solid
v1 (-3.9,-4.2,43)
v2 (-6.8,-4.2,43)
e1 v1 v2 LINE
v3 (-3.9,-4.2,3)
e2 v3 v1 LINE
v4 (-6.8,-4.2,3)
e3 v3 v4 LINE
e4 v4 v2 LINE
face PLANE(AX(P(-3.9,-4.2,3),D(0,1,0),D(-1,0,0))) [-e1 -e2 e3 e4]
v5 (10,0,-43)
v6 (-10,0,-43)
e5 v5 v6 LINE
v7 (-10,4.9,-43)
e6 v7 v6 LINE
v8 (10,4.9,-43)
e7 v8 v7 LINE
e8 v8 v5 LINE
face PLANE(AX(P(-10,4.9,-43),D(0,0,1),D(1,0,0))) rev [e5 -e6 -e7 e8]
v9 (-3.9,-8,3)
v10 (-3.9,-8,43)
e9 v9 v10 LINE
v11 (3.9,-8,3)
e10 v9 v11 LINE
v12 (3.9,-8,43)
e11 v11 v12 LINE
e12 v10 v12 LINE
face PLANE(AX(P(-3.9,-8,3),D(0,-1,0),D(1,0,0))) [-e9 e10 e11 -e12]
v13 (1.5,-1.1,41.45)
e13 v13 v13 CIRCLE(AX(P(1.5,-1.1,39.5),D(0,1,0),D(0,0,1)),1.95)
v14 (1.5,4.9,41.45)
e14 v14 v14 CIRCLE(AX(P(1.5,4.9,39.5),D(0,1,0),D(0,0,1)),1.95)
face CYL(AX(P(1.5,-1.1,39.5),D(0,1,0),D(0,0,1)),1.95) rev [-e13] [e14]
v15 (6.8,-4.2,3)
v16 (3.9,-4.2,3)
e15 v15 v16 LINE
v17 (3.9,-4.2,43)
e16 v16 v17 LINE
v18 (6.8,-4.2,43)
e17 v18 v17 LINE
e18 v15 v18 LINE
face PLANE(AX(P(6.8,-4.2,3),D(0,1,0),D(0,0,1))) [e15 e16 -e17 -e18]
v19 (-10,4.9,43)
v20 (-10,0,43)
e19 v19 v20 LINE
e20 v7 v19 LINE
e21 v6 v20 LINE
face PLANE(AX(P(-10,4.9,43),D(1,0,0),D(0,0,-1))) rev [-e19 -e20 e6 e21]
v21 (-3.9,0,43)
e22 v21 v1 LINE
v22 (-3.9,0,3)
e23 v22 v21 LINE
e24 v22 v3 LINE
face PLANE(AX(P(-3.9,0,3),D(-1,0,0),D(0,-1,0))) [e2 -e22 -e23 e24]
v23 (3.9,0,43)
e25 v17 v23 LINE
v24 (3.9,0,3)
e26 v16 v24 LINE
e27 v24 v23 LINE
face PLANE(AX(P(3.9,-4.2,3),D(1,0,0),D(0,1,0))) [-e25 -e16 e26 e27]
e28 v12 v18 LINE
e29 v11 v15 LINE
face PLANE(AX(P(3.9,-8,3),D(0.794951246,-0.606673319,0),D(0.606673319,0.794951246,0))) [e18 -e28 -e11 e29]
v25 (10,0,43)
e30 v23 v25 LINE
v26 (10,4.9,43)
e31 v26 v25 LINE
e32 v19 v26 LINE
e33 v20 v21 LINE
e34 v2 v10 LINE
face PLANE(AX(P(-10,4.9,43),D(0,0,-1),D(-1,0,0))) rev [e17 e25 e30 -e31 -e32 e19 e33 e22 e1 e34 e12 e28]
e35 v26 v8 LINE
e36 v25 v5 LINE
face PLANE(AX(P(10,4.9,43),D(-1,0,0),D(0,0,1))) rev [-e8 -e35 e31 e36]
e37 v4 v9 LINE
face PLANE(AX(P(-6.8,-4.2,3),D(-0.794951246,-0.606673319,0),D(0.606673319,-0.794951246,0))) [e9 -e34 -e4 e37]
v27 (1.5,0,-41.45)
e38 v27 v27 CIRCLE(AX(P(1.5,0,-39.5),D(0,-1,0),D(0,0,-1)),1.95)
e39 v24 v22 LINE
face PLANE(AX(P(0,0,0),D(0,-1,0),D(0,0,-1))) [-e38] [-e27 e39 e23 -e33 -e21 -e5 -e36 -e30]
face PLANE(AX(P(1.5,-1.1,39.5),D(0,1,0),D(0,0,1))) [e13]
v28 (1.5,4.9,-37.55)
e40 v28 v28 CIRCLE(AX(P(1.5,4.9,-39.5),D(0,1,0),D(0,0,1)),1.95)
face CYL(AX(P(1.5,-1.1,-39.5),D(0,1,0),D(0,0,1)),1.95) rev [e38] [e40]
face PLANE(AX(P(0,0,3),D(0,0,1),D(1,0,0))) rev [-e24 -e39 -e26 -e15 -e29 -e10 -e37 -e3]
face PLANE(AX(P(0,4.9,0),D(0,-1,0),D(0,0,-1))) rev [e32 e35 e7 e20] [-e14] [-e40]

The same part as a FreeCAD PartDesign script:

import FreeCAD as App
import Part
import Sketcher

V = App.Vector
Q = App.Units.Quantity

doc = App.newDocument("Part")
params = doc.addObject("Spreadsheet::Sheet", "Params")
for row, (alias, value) in enumerate([
    ("sketch1_width", "20 mm"),
    ("sketch1_height", "86 mm"),
    ("pad1_length", "4.9 mm"),
    ("sketch2_width", "2.9 mm"),
    ("sketch2_width2", "7.8 mm"),
    ("sketch2_height", "4.2 mm"),
    ("pad2_length", "40 mm"),
    ("sketch3_diameter", "3.9 mm"),
    ("pocket1_length", "6 mm"),
], start=1):
    params.set(f"A{row}", alias)
    params.set(f"B{row}", "=" + value)
    params.setAlias(f"B{row}", alias)

body = doc.addObject("PartDesign::Body", "Body")

# Sketch on XZ plane
sketch1 = body.newObject("Sketcher::SketchObject", "Sketch")
sketch1.AttachmentSupport = (doc.getObject("XZ_Plane"), [""])
sketch1.MapMode = "FlatFace"
sketch1.addGeometry(Part.LineSegment(V(-10, -43, 0), V(-10, 43, 0)), False)
sketch1.addGeometry(Part.LineSegment(V(-10, 43, 0), V(10, 43, 0)), False)
sketch1.addGeometry(Part.LineSegment(V(10, 43, 0), V(10, -43, 0)), False)
sketch1.addGeometry(Part.LineSegment(V(10, -43, 0), V(-10, -43, 0)), False)
sketch1.addConstraint(Sketcher.Constraint("Coincident", 0, 2, 1, 1))
sketch1.addConstraint(Sketcher.Constraint("Coincident", 1, 2, 2, 1))
sketch1.addConstraint(Sketcher.Constraint("Coincident", 2, 2, 3, 1))
sketch1.addConstraint(Sketcher.Constraint("Coincident", 3, 2, 0, 1))
sketch1.addConstraint(Sketcher.Constraint("Vertical", 0))
sketch1.addConstraint(Sketcher.Constraint("Horizontal", 1))
sketch1.addConstraint(Sketcher.Constraint("Vertical", 2))
sketch1.addConstraint(Sketcher.Constraint("Horizontal", 3))
sketch1.addConstraint(Sketcher.Constraint("Symmetric", 0, 2, 2, 2, -1, 1))
sketch1.addConstraint(Sketcher.Constraint("DistanceX", 1, 1, 1, 2, Q("20 mm")))
sketch1.addConstraint(Sketcher.Constraint("DistanceY", 0, 1, 0, 2, Q("86 mm")))
sketch1.setExpression("Constraints[9]", "Params.sketch1_width")
sketch1.setExpression("Constraints[10]", "Params.sketch1_height")
pad1 = body.newObject("PartDesign::Pad", "Pad")
pad1.Profile = sketch1
pad1.setExpression("Length", "Params.pad1_length")
pad1.Reversed = True

# Sketch on XY plane
sketch2 = body.newObject("Sketcher::SketchObject", "Sketch001")
sketch2.AttachmentSupport = (doc.getObject("XY_Plane"), [""])
sketch2.MapMode = "FlatFace"
sketch2.AttachmentOffset = App.Placement(V(0, 0, 43), App.Rotation())
sketch2.addGeometry(Part.LineSegment(V(-3.9, 0, 0), V(-3.9, -4.2, 0)), False)
sketch2.addGeometry(Part.LineSegment(V(-3.9, -4.2, 0), V(-6.8, -4.2, 0)), False)
sketch2.addGeometry(Part.LineSegment(V(-6.8, -4.2, 0), V(-3.9, -8, 0)), False)
sketch2.addGeometry(Part.LineSegment(V(-3.9, -8, 0), V(3.9, -8, 0)), False)
sketch2.addGeometry(Part.LineSegment(V(3.9, -8, 0), V(6.8, -4.2, 0)), False)
sketch2.addGeometry(Part.LineSegment(V(6.8, -4.2, 0), V(3.9, -4.2, 0)), False)
sketch2.addGeometry(Part.LineSegment(V(3.9, -4.2, 0), V(3.9, 0, 0)), False)
sketch2.addGeometry(Part.LineSegment(V(3.9, 0, 0), V(-3.9, 0, 0)), False)
sketch2.addConstraint(Sketcher.Constraint("Coincident", 0, 2, 1, 1))
sketch2.addConstraint(Sketcher.Constraint("Coincident", 1, 2, 2, 1))
sketch2.addConstraint(Sketcher.Constraint("Coincident", 2, 2, 3, 1))
sketch2.addConstraint(Sketcher.Constraint("Coincident", 3, 2, 4, 1))
sketch2.addConstraint(Sketcher.Constraint("Coincident", 4, 2, 5, 1))
sketch2.addConstraint(Sketcher.Constraint("Coincident", 5, 2, 6, 1))
sketch2.addConstraint(Sketcher.Constraint("Coincident", 6, 2, 7, 1))
sketch2.addConstraint(Sketcher.Constraint("Coincident", 7, 2, 0, 1))
sketch2.addConstraint(Sketcher.Constraint("Vertical", 0))
sketch2.addConstraint(Sketcher.Constraint("Horizontal", 1))
sketch2.addConstraint(Sketcher.Constraint("Horizontal", 3))
sketch2.addConstraint(Sketcher.Constraint("Horizontal", 5))
sketch2.addConstraint(Sketcher.Constraint("Vertical", 6))
sketch2.addConstraint(Sketcher.Constraint("Horizontal", 7))
sketch2.addConstraint(Sketcher.Constraint("Symmetric", 6, 2, 7, 2, -1, 1))
sketch2.addConstraint(Sketcher.Constraint("Symmetric", 1, 2, 4, 2, -2))
sketch2.addConstraint(Sketcher.Constraint("Vertical", 0, 2, 2, 2))
sketch2.addConstraint(Sketcher.Constraint("Vertical", 3, 2, 5, 2))
sketch2.addConstraint(Sketcher.Constraint("DistanceX", 1, 2, 1, 1, Q("2.9 mm")))
sketch2.addConstraint(Sketcher.Constraint("DistanceX", 3, 1, 3, 2, Q("7.8 mm")))
sketch2.addConstraint(Sketcher.Constraint("DistanceY", 0, 2, 0, 1, Q("4.2 mm")))
sketch2.addConstraint(Sketcher.Constraint("DistanceY", 2, 2, -1, 1, Q("8 mm")))
sketch2.setExpression("Constraints[18]", "Params.sketch2_width")
sketch2.setExpression("Constraints[19]", "Params.sketch2_width2")
sketch2.setExpression("Constraints[20]", "Params.sketch2_height")
pad2 = body.newObject("PartDesign::Pad", "Pad001")
pad2.Profile = sketch2
pad2.setExpression("Length", "Params.pad2_length")
pad2.Reversed = True

# Sketch on XZ plane
sketch3 = body.newObject("Sketcher::SketchObject", "Sketch002")
sketch3.AttachmentSupport = (doc.getObject("XZ_Plane"), [""])
sketch3.MapMode = "FlatFace"
sketch3.AttachmentOffset = App.Placement(V(0, 0, -4.9), App.Rotation())
sketch3.addGeometry(Part.Circle(V(1.5, 39.5, 0), V(0, 0, 1), 1.9), False)
sketch3.addGeometry(Part.Circle(V(1.5, -39.5, 0), V(0, 0, 1), 1.9), False)
sketch3.addConstraint(Sketcher.Constraint("Equal", 0, 1))
sketch3.addConstraint(Sketcher.Constraint("Symmetric", 0, 3, 1, 3, -1))
sketch3.addConstraint(Sketcher.Constraint("Diameter", 0, Q("3.9 mm")))
sketch3.addConstraint(Sketcher.Constraint("DistanceY", 1, 3, 0, 3, Q("79 mm")))
sketch3.addConstraint(Sketcher.Constraint("DistanceX", -1, 1, 0, 3, Q("1.5 mm")))
sketch3.setExpression("Constraints[2]", "Params.sketch3_diameter")
pocket1 = body.newObject("PartDesign::Pocket", "Pocket")
pocket1.Profile = sketch3
pocket1.setExpression("Length", "Params.pocket1_length")
pocket1.Reversed = True

doc.recompute()
